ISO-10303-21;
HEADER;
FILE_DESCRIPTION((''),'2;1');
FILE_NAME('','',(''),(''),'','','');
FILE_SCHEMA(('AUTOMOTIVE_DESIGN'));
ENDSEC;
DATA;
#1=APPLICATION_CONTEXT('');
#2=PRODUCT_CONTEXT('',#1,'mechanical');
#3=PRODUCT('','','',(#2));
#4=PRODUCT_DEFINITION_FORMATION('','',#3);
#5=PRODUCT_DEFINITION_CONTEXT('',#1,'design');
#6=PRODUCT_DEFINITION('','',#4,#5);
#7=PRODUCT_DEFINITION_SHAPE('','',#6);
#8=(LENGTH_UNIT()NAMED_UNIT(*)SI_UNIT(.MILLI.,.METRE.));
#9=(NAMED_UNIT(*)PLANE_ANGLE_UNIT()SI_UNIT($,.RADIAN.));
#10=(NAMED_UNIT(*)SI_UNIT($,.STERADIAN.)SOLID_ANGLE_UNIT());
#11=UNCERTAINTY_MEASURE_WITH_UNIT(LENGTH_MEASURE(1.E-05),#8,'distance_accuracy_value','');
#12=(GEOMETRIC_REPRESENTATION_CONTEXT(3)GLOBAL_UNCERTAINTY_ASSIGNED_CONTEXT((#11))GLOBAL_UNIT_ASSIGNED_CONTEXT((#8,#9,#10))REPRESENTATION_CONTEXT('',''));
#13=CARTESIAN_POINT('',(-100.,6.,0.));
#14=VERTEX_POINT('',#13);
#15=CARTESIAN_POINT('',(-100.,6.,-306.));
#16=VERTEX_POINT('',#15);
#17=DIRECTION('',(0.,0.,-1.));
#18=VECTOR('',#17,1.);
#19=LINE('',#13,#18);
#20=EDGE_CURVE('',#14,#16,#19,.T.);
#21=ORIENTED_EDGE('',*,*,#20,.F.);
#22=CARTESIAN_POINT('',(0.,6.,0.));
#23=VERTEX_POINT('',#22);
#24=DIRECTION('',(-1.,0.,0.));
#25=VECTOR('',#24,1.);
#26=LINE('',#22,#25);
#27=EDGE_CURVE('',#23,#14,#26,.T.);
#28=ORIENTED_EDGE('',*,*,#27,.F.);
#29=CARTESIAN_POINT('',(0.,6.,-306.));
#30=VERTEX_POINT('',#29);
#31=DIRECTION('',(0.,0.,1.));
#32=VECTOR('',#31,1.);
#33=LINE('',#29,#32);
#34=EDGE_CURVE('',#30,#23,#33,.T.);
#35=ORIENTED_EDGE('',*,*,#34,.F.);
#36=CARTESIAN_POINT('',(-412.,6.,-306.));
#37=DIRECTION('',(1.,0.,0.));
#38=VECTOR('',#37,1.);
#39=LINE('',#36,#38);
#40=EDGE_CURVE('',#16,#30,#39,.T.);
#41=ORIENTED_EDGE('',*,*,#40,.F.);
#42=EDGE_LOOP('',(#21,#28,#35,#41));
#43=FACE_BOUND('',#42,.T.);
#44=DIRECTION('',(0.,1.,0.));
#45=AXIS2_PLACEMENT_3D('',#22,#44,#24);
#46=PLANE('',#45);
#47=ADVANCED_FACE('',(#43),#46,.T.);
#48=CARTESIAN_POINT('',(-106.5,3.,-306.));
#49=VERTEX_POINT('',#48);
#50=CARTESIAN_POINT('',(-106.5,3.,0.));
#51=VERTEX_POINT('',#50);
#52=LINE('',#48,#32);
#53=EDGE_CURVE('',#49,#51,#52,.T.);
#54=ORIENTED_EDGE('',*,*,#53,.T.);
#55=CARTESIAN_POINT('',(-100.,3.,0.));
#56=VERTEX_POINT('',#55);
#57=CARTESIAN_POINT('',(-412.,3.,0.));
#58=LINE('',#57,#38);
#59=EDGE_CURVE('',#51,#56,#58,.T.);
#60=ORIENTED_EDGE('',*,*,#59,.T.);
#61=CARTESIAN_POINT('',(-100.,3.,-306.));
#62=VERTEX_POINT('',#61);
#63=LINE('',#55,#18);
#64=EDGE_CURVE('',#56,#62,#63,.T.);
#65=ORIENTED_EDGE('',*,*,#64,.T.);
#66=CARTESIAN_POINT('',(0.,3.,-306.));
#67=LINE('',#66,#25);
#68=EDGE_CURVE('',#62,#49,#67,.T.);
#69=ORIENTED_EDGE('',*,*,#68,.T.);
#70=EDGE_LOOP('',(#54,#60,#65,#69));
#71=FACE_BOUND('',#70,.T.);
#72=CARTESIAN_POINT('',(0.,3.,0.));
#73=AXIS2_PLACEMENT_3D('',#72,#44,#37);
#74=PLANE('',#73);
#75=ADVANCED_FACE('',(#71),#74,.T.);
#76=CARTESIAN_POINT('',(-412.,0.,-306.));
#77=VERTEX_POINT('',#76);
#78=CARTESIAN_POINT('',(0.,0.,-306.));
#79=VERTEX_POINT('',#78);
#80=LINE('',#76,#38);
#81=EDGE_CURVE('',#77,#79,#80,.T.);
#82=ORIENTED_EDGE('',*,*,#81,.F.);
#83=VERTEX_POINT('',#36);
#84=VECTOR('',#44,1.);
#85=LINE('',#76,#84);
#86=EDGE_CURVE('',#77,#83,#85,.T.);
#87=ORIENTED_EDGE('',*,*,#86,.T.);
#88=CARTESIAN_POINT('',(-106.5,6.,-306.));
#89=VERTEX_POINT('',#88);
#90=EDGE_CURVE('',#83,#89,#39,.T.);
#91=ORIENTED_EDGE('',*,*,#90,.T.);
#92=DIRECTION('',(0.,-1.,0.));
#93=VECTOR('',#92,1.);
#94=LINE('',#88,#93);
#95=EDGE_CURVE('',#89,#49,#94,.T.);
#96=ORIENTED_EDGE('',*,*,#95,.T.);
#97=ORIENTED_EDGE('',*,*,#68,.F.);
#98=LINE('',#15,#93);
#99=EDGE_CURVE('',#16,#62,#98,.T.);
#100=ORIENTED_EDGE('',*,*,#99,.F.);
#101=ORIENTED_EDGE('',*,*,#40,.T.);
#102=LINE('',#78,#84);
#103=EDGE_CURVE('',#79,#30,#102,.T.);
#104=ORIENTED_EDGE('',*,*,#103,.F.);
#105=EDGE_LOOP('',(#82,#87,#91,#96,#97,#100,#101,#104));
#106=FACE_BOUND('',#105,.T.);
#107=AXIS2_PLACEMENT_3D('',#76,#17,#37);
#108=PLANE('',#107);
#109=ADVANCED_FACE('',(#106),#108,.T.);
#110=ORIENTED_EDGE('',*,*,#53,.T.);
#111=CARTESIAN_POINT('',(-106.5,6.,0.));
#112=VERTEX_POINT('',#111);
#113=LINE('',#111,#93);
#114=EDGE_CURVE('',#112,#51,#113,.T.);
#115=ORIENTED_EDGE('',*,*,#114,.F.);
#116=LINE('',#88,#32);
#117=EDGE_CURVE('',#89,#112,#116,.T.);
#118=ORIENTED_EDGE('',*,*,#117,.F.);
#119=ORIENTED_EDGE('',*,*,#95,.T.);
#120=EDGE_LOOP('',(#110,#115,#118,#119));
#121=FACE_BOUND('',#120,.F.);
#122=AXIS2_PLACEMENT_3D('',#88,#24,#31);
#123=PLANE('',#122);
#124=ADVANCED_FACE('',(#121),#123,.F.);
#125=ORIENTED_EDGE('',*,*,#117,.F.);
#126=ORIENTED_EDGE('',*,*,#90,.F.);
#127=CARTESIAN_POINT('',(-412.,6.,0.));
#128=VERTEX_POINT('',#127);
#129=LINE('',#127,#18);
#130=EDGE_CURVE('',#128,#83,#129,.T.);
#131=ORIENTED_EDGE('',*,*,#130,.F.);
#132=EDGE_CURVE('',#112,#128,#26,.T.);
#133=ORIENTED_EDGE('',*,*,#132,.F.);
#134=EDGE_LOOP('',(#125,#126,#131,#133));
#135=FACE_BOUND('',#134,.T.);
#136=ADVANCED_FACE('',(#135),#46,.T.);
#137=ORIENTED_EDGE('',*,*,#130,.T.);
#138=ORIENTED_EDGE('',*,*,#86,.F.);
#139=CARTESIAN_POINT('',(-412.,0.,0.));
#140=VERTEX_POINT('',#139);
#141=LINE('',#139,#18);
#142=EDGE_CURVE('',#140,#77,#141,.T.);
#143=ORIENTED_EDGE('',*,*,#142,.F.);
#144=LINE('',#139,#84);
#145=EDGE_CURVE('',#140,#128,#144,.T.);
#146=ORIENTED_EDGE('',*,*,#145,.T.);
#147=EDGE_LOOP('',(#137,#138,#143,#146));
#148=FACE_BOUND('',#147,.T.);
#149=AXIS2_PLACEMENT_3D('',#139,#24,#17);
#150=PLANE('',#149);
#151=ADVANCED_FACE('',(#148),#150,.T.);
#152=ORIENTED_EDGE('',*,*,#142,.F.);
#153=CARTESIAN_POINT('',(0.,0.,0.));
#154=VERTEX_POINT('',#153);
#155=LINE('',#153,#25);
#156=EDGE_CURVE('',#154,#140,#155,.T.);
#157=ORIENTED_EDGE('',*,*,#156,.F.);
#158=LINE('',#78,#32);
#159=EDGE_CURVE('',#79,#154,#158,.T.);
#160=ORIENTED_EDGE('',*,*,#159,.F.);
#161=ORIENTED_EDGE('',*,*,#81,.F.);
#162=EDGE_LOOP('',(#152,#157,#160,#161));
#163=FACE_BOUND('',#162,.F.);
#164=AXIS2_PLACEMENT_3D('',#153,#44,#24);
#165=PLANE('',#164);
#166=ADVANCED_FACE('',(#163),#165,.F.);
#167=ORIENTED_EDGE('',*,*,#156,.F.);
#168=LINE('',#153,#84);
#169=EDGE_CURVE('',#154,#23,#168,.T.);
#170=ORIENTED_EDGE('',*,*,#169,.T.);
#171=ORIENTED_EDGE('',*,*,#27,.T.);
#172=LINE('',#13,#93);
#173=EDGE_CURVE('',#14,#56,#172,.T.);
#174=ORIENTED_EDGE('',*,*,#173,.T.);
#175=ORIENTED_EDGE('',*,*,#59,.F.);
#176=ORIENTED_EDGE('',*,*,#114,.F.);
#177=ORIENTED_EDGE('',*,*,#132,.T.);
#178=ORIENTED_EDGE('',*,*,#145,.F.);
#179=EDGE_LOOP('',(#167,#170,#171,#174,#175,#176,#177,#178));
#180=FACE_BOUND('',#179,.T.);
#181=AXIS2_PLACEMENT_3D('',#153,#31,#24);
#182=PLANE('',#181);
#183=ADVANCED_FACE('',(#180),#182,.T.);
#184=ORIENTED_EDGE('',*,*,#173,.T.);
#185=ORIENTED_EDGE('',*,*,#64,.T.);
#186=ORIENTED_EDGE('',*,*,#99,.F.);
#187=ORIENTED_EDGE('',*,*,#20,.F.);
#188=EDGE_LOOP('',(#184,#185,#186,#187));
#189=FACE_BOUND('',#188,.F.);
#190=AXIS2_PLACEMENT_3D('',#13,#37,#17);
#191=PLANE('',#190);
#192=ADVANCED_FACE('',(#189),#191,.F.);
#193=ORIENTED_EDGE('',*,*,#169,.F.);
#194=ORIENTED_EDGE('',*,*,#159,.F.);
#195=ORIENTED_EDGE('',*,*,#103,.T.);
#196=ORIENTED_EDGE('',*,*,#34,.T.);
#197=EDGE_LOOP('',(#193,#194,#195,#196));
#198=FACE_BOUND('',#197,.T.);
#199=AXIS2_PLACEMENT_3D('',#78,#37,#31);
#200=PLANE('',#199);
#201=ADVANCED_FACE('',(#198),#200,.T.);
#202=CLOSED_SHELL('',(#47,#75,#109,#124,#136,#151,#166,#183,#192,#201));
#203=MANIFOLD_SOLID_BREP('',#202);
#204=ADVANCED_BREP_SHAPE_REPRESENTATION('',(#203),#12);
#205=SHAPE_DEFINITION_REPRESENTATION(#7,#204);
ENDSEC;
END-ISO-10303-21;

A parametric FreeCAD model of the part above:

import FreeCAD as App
import Part
import Sketcher
from FreeCAD import Vector


def add_polygon(sketch, points):
    """Adds a closed chain of lines whose ends are joined by coincident constraints."""
    first, n = sketch.GeometryCount, len(points)
    for a, b in zip(points, points[1:] + points[:1]):
        sketch.addGeometry(Part.LineSegment(App.Vector(*a, 0), App.Vector(*b, 0)), False)
    for i in range(n):
        sketch.addConstraint(Sketcher.Constraint("Coincident", first + i, 2, first + (i + 1) % n, 1))

doc = App.newDocument("Part")
body = doc.addObject("PartDesign::Body", "Body")

# Sketch on XZ plane
sketch1 = body.newObject("Sketcher::SketchObject", "Sketch")
sketch1.AttachmentSupport = (doc.getObject("XZ_Plane"), [""])
sketch1.MapMode = "FlatFace"
add_polygon(sketch1, [(-412, 0), (0, 0), (0, -306), (-412, -306)])  # lines 0-3
sketch1.addConstraint([
    Sketcher.Constraint("Horizontal", 0),
    Sketcher.Constraint("Vertical", 1),
    Sketcher.Constraint("Horizontal", 2),
    Sketcher.Constraint("Vertical", 3),
    Sketcher.Constraint("Coincident", 0, 2, -1, 1),
    Sketcher.Constraint("DistanceX", 0, 1, 0, 2, 412.0),
    Sketcher.Constraint("DistanceY", 1, 2, 1, 1, 306.0),
])
pad1 = body.newObject("PartDesign::Pad", "Pad")
pad1.Profile = sketch1
pad1.Length = 6
pad1.Reversed = True

# Sketch on XZ plane
sketch2 = body.newObject("Sketcher::SketchObject", "Sketch001")
sketch2.AttachmentSupport = (doc.getObject("XZ_Plane"), [""])
sketch2.MapMode = "FlatFace"
sketch2.AttachmentOffset = App.Placement(Vector(0, 0, -6), App.Rotation())
add_polygon(sketch2, [(-106, -306), (-106, 0), (-100, 0), (-100, -306)])  # lines 0-3
sketch2.addConstraint([
    Sketcher.Constraint("Vertical", 0),
    Sketcher.Constraint("Horizontal", 1),
    Sketcher.Constraint("Vertical", 2),
    Sketcher.Constraint("Horizontal", 3),
    Sketcher.Constraint("PointOnObject", 0, 2, -1),
    Sketcher.Constraint("DistanceX", 1, 1, 1, 2, 6.5),
    Sketcher.Constraint("DistanceX", 1, 2, -1, 1, 100.0),
    Sketcher.Constraint("DistanceY", 0, 1, 0, 2, 306.0),
])
pocket1 = body.newObject("PartDesign::Pocket", "Pocket")
pocket1.Profile = sketch2
pocket1.Length = 3
pocket1.Reversed = True

doc.recompute()
